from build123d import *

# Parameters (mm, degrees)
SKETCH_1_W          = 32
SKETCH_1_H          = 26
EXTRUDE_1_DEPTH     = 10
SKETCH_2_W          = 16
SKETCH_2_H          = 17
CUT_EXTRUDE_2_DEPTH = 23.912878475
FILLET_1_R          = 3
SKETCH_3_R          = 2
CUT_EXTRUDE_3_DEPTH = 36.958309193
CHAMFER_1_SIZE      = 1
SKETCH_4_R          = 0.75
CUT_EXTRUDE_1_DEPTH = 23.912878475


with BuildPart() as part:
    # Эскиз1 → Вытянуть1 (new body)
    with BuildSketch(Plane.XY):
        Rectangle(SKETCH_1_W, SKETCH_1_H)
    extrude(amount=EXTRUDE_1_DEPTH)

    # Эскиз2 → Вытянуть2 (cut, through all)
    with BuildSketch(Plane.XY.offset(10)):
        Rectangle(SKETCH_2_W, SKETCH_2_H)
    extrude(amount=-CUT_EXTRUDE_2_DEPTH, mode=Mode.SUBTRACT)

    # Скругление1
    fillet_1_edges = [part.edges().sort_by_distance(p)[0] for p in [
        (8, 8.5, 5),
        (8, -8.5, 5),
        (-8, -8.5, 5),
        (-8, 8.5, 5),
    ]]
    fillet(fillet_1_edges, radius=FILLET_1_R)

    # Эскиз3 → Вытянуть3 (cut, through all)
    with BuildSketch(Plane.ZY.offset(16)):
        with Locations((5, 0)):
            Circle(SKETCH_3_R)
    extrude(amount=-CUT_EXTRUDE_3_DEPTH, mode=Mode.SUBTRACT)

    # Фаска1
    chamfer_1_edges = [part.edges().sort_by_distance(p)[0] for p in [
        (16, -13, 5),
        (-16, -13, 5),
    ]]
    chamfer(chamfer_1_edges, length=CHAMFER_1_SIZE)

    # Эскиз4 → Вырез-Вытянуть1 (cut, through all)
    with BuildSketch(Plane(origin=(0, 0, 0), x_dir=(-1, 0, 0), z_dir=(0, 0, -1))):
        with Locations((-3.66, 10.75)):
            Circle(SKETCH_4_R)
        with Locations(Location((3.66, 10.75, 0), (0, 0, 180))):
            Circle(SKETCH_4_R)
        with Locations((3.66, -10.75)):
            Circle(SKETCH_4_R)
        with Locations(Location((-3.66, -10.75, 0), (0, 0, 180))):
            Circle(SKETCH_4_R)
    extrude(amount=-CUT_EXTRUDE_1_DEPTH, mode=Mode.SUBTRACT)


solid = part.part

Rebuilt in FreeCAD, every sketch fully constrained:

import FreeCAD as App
import Part
import Sketcher
from FreeCAD import Vector


def edges_at(feature, points):
    """Names of the edges that pass closest to the given points."""
    edges = feature.Shape.Edges
    near = lambda p: min(range(len(edges)), key=lambda i: edges[i].distToShape(Part.Vertex(*p))[0])
    return sorted({f"Edge{near(p) + 1}" for p in points})


def add_polygon(sketch, points):
    """Adds a closed chain of lines whose ends are joined by coincident constraints."""
    first, n = sketch.GeometryCount, len(points)
    for a, b in zip(points, points[1:] + points[:1]):
        sketch.addGeometry(Part.LineSegment(App.Vector(*a, 0), App.Vector(*b, 0)), False)
    for i in range(n):
        sketch.addConstraint(Sketcher.Constraint("Coincident", first + i, 2, first + (i + 1) % n, 1))

doc = App.newDocument("Part")
params = doc.addObject("Spreadsheet::Sheet", "Params")
for row, (alias, value) in enumerate([
    ("sketch1_width", "32 mm"),
    ("sketch1_height", "26 mm"),
    ("pad1_length", "10 mm"),
    ("sketch2_width", "16 mm"),
    ("sketch2_height", "17 mm"),
    ("fillet_radius", "3 mm"),
    ("sketch3_diameter", "4 mm"),
    ("chamfer_size", "1 mm"),
    ("sketch4_diameter", "1.5 mm"),
], start=1):
    params.set(f"A{row}", alias)
    params.set(f"B{row}", "=" + value)
    params.setAlias(f"B{row}", alias)

body = doc.addObject("PartDesign::Body", "Body")

# Sketch on XY plane
sketch1 = body.newObject("Sketcher::SketchObject", "Sketch")
sketch1.AttachmentSupport = (doc.getObject("XY_Plane"), [""])
sketch1.MapMode = "FlatFace"
add_polygon(sketch1, [(-16, 13), (-16, -13), (16, -13), (16, 13)])  # lines 0-3
sketch1.addConstraint(Sketcher.Constraint("Vertical", 0))
sketch1.addConstraint(Sketcher.Constraint("Horizontal", 1))
sketch1.addConstraint(Sketcher.Constraint("Vertical", 2))
sketch1.addConstraint(Sketcher.Constraint("Horizontal", 3))
sketch1.addConstraint(Sketcher.Constraint("Symmetric", 0, 2, 2, 2, -1, 1))
sketch1.addConstraint(Sketcher.Constraint("DistanceX", 1, 1, 1, 2, 32.0))
sketch1.addConstraint(Sketcher.Constraint("DistanceY", 0, 2, 0, 1, 26.0))
sketch1.setExpression("Constraints[9]", "Params.sketch1_width")
sketch1.setExpression("Constraints[10]", "Params.sketch1_height")
pad1 = body.newObject("PartDesign::Pad", "Pad")
pad1.Profile = sketch1
pad1.setExpression("Length", "Params.pad1_length")

# Sketch on XY plane
sketch2 = body.newObject("Sketcher::SketchObject", "Sketch001")
sketch2.AttachmentSupport = (doc.getObject("XY_Plane"), [""])
sketch2.MapMode = "FlatFace"
sketch2.AttachmentOffset = App.Placement(Vector(0, 0, 10), App.Rotation())
add_polygon(sketch2, [(-8, 8.5), (-8, -8.5), (8, -8.5), (8, 8.5)])  # lines 0-3
sketch2.addConstraint(Sketcher.Constraint("Vertical", 0))
sketch2.addConstraint(Sketcher.Constraint("Horizontal", 1))
sketch2.addConstraint(Sketcher.Constraint("Vertical", 2))
sketch2.addConstraint(Sketcher.Constraint("Horizontal", 3))
sketch2.addConstraint(Sketcher.Constraint("Symmetric", 0, 2, 2, 2, -1, 1))
sketch2.addConstraint(Sketcher.Constraint("DistanceX", 1, 1, 1, 2, 16.0))
sketch2.addConstraint(Sketcher.Constraint("DistanceY", 0, 2, 0, 1, 17.0))
sketch2.setExpression("Constraints[9]", "Params.sketch2_width")
sketch2.setExpression("Constraints[10]", "Params.sketch2_height")
pocket1 = body.newObject("PartDesign::Pocket", "Pocket")
pocket1.Profile = sketch2
pocket1.Type = "ThroughAll"
doc.recompute()

fillet = body.newObject("PartDesign::Fillet", "Fillet")
fillet.Base = (pocket1, edges_at(pocket1, [
    (8, 8.5, 5),
    (8, -8.5, 5),
    (-8, -8.5, 5),
    (-8, 8.5, 5),
]))
fillet.setExpression("Radius", "Params.fillet_radius")

# Sketch on YZ plane
sketch3 = body.newObject("Sketcher::SketchObject", "Sketch002")
sketch3.AttachmentSupport = (doc.getObject("YZ_Plane"), [""])
sketch3.MapMode = "FlatFace"
sketch3.AttachmentOffset = App.Placement(Vector(0, 0, -16), App.Rotation())
sketch3.addGeometry(Part.Circle(Vector(0, 5, 0), Vector(0, 0, 1), 2), False)
sketch3.addConstraint(Sketcher.Constraint("PointOnObject", 0, 3, -2))
sketch3.addConstraint(Sketcher.Constraint("Diameter", 0, 4.0))
sketch3.addConstraint(Sketcher.Constraint("DistanceY", -1, 1, 0, 3, 5.0))
sketch3.setExpression("Constraints[1]", "Params.sketch3_diameter")
pocket2 = body.newObject("PartDesign::Pocket", "Pocket001")
pocket2.Profile = sketch3
pocket2.Type = "ThroughAll"
pocket2.Reversed = True
doc.recompute()

chamfer = body.newObject("PartDesign::Chamfer", "Chamfer")
chamfer.Base = (pocket2, edges_at(pocket2, [(16, -13, 5), (-16, -13, 5)]))
chamfer.setExpression("Size", "Params.chamfer_size")

# Sketch on XY plane
sketch4 = body.newObject("Sketcher::SketchObject", "Sketch003")
sketch4.AttachmentSupport = (doc.getObject("XY_Plane"), [""])
sketch4.MapMode = "FlatFace"
sketch4.addGeometry(Part.Circle(Vector(3.66, 10.75, 0), Vector(0, 0, 1), 0.75), False)
sketch4.addGeometry(Part.Circle(Vector(-3.66, 10.75, 0), Vector(0, 0, 1), 0.75), False)
sketch4.addGeometry(Part.Circle(Vector(-3.66, -10.75, 0), Vector(0, 0, 1), 0.75), False)
sketch4.addGeometry(Part.Circle(Vector(3.66, -10.75, 0), Vector(0, 0, 1), 0.75), False)
sketch4.addConstraint(Sketcher.Constraint("Equal", 0, 1))
sketch4.addConstraint(Sketcher.Constraint("Equal", 1, 2))
sketch4.addConstraint(Sketcher.Constraint("Equal", 2, 3))
sketch4.addConstraint(Sketcher.Constraint("Symmetric", 0, 3, 2, 3, -1, 1))
sketch4.addConstraint(Sketcher.Constraint("Symmetric", 1, 3, 3, 3, -1, 1))
sketch4.addConstraint(Sketcher.Constraint("Symmetric", 0, 3, 1, 3, -2))
sketch4.addConstraint(Sketcher.Constraint("Diameter", 0, 1.5))
sketch4.addConstraint(Sketcher.Constraint("DistanceY", 2, 3, 1, 3, 21.5))
sketch4.addConstraint(Sketcher.Constraint("DistanceX", -1, 1, 0, 3, 3.66))
sketch4.setExpression("Constraints[6]", "Params.sketch4_diameter")
pocket3 = body.newObject("PartDesign::Pocket", "Pocket002")
pocket3.Profile = sketch4
pocket3.Type = "ThroughAll"
pocket3.Reversed = True

doc.recompute()
